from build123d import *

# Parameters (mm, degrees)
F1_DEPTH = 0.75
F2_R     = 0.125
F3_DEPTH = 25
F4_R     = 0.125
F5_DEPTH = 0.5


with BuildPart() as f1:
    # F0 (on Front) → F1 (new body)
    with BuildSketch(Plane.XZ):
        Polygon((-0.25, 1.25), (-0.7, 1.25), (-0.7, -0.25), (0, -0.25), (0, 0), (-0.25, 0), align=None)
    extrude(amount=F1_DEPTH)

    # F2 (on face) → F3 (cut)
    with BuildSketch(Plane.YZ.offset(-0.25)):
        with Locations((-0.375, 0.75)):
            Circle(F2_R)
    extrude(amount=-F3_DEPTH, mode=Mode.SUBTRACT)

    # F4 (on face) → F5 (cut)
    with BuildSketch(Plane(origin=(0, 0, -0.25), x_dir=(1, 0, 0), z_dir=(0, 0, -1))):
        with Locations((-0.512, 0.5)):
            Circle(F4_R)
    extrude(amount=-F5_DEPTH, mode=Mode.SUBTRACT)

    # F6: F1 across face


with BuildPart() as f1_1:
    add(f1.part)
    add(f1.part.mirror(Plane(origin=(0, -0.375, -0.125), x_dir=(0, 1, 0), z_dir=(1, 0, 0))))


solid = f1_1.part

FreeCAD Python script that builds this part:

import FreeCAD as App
import Part
import Sketcher
Q = App.Units.Quantity

doc = App.newDocument("Part")
body = doc.addObject("PartDesign::Body", "Body")

# Sketch on XZ plane
sketch1 = doc.addObject("Sketcher::SketchObject", "Sketch")
body.addObject(sketch1)
sketch1.AttachmentSupport = (doc.XZ_Plane, [""])
sketch1.MapMode = "FlatFace"
sketch1.addGeometry([
    Part.LineSegment(App.Vector(-0.25, 1.25, 0), App.Vector(-0.7, 1.25, 0)),  # 0
    Part.LineSegment(App.Vector(-0.7, 1.25, 0), App.Vector(-0.7, -0.25, 0)),  # 1
    Part.LineSegment(App.Vector(-0.7, -0.25, 0), App.Vector(0, -0.25, 0)),  # 2
    Part.LineSegment(App.Vector(0, -0.25, 0), App.Vector(0, 0, 0)),  # 3
    Part.LineSegment(App.Vector(0, 0, 0), App.Vector(-0.25, 0, 0)),  # 4
    Part.LineSegment(App.Vector(-0.25, 0, 0), App.Vector(-0.25, 1.25, 0)),  # 5
], False)
sketch1.addConstraint([
    Sketcher.Constraint("Coincident", 0, 2, 1, 1),
    Sketcher.Constraint("Coincident", 1, 2, 2, 1),
    Sketcher.Constraint("Coincident", 2, 2, 3, 1),
    Sketcher.Constraint("Coincident", 3, 2, 4, 1),
    Sketcher.Constraint("Coincident", 4, 2, 5, 1),
    Sketcher.Constraint("Coincident", 5, 2, 0, 1),
    Sketcher.Constraint("Horizontal", 0),
    Sketcher.Constraint("Vertical", 1),
    Sketcher.Constraint("Horizontal", 2),
    Sketcher.Constraint("Vertical", 3),
    Sketcher.Constraint("Horizontal", 4),
    Sketcher.Constraint("Vertical", 5),
    Sketcher.Constraint("Coincident", 3, 2, -1, 1),
    Sketcher.Constraint("Equal", 4, 3),
    Sketcher.Constraint("DistanceX", 2, 1, 2, 2, Q("0.7 mm")),
    Sketcher.Constraint("DistanceY", 1, 2, 1, 1, Q("1.5 mm")),
    Sketcher.Constraint("DistanceX", 0, 2, 0, 1, Q("0.45 mm")),
])
pad1 = doc.addObject("PartDesign::Pad", "Pad")
body.addObject(pad1)
pad1.Profile = sketch1
pad1.Length = 0.75

# Sketch on YZ plane
sketch2 = doc.addObject("Sketcher::SketchObject", "Sketch001")
body.addObject(sketch2)
sketch2.AttachmentSupport = (doc.YZ_Plane, [""])
sketch2.MapMode = "FlatFace"
sketch2.AttachmentOffset = App.Placement(App.Vector(0, 0, -0.25), App.Rotation())
sketch2.addGeometry(Part.Circle(App.Vector(-0.38, 0.75, 0), App.Vector(0, 0, 1), 0.12), False)
sketch2.addConstraint([
    Sketcher.Constraint("Diameter", 0, Q("0.25 mm")),
    Sketcher.Constraint("DistanceY", -1, 1, 0, 3, Q("0.75 mm")),
    Sketcher.Constraint("DistanceX", 0, 3, -1, 1, Q("0.375 mm")),
])
pocket1 = doc.addObject("PartDesign::Pocket", "Pocket")
body.addObject(pocket1)
pocket1.Profile = sketch2
pocket1.Length = 25

# Sketch on XY plane
sketch3 = doc.addObject("Sketcher::SketchObject", "Sketch002")
body.addObject(sketch3)
sketch3.AttachmentSupport = (doc.XY_Plane, [""])
sketch3.MapMode = "FlatFace"
sketch3.AttachmentOffset = App.Placement(App.Vector(0, 0, -0.25), App.Rotation())
sketch3.addGeometry(Part.Circle(App.Vector(-0.51, -0.5, 0), App.Vector(0, 0, 1), 0.12), False)
sketch3.addConstraint([
    Sketcher.Constraint("Diameter", 0, Q("0.25 mm")),
    Sketcher.Constraint("DistanceY", 0, 3, -1, 1, Q("0.5 mm")),
    Sketcher.Constraint("DistanceX", 0, 3, -1, 1, Q("0.512 mm")),
])
pocket2 = doc.addObject("PartDesign::Pocket", "Pocket001")
body.addObject(pocket2)
pocket2.Profile = sketch3
pocket2.Length = 0.5
pocket2.Reversed = True
body2 = doc.addObject("PartDesign::Body", "Body001")
doc.recompute()

body2.BaseFeature = body
doc.recompute()

mirroring = doc.addObject("Part::Mirroring", "Mirroring")
mirroring.Source = body
mirroring.Base = App.Vector(0, -0.375, -0.125)
mirroring.Normal = App.Vector(1, 0, 0)
body3 = doc.addObject("PartDesign::Body", "Body002")
body3.BaseFeature = mirroring
boolean = doc.addObject("PartDesign::Boolean", "Boolean")
body2.addObject(boolean)
boolean.Type = "Fuse"
boolean.addObjects([body3])
doc.recompute()
mirroring.Visibility = False

doc.recompute()
